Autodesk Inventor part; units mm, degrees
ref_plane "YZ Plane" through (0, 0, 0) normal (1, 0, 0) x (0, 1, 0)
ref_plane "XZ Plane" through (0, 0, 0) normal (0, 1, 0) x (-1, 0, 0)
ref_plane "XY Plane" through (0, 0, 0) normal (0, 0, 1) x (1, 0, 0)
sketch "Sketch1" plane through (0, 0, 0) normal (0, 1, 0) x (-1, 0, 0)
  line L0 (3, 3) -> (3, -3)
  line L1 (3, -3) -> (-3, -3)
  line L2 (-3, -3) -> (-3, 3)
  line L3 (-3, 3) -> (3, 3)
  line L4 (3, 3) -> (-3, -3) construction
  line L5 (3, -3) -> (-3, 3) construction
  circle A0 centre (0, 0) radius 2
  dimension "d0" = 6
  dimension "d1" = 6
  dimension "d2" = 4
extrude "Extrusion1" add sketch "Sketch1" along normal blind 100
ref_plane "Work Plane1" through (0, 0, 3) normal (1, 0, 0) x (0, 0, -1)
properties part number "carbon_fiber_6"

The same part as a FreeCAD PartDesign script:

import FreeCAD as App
import Part
import Sketcher

V = App.Vector
Q = App.Units.Quantity


def add_polygon(sketch, points):
    """Adds a closed chain of lines whose ends are joined by coincident constraints."""
    first, n = sketch.GeometryCount, len(points)
    for a, b in zip(points, points[1:] + points[:1]):
        sketch.addGeometry(Part.LineSegment(App.Vector(*a, 0), App.Vector(*b, 0)), False)
    for i in range(n):
        sketch.addConstraint(Sketcher.Constraint("Coincident", first + i, 2, first + (i + 1) % n, 1))

doc = App.newDocument("Part")
body = doc.addObject("PartDesign::Body", "Body")

# Sketch on XZ plane
sketch1 = body.newObject("Sketcher::SketchObject", "Sketch")
sketch1.AttachmentSupport = (doc.getObject("XZ_Plane"), [""])
sketch1.MapMode = "FlatFace"
add_polygon(sketch1, [(-3, -3), (-3, 3), (3, 3), (3, -3)])  # lines 0-3
sketch1.addGeometry(Part.Circle(V(0, 0, 0), V(0, 0, 1), 2), False)  # 4
sketch1.addConstraint([
    Sketcher.Constraint("Vertical", 0),
    Sketcher.Constraint("Horizontal", 1),
    Sketcher.Constraint("Vertical", 2),
    Sketcher.Constraint("Horizontal", 3),
    Sketcher.Constraint("Coincident", 4, 3, -1, 1),
    Sketcher.Constraint("Symmetric", 0, 2, 2, 2, -1, 1),
    Sketcher.Constraint("Equal", 3, 0),
    Sketcher.Constraint("Diameter", 4, Q("4 mm")),
    Sketcher.Constraint("DistanceX", 1, 1, 1, 2, Q("6 mm")),
])
pad1 = body.newObject("PartDesign::Pad", "Pad")
pad1.Profile = sketch1
pad1.Length = 100
pad1.Reversed = True

doc.recompute()
